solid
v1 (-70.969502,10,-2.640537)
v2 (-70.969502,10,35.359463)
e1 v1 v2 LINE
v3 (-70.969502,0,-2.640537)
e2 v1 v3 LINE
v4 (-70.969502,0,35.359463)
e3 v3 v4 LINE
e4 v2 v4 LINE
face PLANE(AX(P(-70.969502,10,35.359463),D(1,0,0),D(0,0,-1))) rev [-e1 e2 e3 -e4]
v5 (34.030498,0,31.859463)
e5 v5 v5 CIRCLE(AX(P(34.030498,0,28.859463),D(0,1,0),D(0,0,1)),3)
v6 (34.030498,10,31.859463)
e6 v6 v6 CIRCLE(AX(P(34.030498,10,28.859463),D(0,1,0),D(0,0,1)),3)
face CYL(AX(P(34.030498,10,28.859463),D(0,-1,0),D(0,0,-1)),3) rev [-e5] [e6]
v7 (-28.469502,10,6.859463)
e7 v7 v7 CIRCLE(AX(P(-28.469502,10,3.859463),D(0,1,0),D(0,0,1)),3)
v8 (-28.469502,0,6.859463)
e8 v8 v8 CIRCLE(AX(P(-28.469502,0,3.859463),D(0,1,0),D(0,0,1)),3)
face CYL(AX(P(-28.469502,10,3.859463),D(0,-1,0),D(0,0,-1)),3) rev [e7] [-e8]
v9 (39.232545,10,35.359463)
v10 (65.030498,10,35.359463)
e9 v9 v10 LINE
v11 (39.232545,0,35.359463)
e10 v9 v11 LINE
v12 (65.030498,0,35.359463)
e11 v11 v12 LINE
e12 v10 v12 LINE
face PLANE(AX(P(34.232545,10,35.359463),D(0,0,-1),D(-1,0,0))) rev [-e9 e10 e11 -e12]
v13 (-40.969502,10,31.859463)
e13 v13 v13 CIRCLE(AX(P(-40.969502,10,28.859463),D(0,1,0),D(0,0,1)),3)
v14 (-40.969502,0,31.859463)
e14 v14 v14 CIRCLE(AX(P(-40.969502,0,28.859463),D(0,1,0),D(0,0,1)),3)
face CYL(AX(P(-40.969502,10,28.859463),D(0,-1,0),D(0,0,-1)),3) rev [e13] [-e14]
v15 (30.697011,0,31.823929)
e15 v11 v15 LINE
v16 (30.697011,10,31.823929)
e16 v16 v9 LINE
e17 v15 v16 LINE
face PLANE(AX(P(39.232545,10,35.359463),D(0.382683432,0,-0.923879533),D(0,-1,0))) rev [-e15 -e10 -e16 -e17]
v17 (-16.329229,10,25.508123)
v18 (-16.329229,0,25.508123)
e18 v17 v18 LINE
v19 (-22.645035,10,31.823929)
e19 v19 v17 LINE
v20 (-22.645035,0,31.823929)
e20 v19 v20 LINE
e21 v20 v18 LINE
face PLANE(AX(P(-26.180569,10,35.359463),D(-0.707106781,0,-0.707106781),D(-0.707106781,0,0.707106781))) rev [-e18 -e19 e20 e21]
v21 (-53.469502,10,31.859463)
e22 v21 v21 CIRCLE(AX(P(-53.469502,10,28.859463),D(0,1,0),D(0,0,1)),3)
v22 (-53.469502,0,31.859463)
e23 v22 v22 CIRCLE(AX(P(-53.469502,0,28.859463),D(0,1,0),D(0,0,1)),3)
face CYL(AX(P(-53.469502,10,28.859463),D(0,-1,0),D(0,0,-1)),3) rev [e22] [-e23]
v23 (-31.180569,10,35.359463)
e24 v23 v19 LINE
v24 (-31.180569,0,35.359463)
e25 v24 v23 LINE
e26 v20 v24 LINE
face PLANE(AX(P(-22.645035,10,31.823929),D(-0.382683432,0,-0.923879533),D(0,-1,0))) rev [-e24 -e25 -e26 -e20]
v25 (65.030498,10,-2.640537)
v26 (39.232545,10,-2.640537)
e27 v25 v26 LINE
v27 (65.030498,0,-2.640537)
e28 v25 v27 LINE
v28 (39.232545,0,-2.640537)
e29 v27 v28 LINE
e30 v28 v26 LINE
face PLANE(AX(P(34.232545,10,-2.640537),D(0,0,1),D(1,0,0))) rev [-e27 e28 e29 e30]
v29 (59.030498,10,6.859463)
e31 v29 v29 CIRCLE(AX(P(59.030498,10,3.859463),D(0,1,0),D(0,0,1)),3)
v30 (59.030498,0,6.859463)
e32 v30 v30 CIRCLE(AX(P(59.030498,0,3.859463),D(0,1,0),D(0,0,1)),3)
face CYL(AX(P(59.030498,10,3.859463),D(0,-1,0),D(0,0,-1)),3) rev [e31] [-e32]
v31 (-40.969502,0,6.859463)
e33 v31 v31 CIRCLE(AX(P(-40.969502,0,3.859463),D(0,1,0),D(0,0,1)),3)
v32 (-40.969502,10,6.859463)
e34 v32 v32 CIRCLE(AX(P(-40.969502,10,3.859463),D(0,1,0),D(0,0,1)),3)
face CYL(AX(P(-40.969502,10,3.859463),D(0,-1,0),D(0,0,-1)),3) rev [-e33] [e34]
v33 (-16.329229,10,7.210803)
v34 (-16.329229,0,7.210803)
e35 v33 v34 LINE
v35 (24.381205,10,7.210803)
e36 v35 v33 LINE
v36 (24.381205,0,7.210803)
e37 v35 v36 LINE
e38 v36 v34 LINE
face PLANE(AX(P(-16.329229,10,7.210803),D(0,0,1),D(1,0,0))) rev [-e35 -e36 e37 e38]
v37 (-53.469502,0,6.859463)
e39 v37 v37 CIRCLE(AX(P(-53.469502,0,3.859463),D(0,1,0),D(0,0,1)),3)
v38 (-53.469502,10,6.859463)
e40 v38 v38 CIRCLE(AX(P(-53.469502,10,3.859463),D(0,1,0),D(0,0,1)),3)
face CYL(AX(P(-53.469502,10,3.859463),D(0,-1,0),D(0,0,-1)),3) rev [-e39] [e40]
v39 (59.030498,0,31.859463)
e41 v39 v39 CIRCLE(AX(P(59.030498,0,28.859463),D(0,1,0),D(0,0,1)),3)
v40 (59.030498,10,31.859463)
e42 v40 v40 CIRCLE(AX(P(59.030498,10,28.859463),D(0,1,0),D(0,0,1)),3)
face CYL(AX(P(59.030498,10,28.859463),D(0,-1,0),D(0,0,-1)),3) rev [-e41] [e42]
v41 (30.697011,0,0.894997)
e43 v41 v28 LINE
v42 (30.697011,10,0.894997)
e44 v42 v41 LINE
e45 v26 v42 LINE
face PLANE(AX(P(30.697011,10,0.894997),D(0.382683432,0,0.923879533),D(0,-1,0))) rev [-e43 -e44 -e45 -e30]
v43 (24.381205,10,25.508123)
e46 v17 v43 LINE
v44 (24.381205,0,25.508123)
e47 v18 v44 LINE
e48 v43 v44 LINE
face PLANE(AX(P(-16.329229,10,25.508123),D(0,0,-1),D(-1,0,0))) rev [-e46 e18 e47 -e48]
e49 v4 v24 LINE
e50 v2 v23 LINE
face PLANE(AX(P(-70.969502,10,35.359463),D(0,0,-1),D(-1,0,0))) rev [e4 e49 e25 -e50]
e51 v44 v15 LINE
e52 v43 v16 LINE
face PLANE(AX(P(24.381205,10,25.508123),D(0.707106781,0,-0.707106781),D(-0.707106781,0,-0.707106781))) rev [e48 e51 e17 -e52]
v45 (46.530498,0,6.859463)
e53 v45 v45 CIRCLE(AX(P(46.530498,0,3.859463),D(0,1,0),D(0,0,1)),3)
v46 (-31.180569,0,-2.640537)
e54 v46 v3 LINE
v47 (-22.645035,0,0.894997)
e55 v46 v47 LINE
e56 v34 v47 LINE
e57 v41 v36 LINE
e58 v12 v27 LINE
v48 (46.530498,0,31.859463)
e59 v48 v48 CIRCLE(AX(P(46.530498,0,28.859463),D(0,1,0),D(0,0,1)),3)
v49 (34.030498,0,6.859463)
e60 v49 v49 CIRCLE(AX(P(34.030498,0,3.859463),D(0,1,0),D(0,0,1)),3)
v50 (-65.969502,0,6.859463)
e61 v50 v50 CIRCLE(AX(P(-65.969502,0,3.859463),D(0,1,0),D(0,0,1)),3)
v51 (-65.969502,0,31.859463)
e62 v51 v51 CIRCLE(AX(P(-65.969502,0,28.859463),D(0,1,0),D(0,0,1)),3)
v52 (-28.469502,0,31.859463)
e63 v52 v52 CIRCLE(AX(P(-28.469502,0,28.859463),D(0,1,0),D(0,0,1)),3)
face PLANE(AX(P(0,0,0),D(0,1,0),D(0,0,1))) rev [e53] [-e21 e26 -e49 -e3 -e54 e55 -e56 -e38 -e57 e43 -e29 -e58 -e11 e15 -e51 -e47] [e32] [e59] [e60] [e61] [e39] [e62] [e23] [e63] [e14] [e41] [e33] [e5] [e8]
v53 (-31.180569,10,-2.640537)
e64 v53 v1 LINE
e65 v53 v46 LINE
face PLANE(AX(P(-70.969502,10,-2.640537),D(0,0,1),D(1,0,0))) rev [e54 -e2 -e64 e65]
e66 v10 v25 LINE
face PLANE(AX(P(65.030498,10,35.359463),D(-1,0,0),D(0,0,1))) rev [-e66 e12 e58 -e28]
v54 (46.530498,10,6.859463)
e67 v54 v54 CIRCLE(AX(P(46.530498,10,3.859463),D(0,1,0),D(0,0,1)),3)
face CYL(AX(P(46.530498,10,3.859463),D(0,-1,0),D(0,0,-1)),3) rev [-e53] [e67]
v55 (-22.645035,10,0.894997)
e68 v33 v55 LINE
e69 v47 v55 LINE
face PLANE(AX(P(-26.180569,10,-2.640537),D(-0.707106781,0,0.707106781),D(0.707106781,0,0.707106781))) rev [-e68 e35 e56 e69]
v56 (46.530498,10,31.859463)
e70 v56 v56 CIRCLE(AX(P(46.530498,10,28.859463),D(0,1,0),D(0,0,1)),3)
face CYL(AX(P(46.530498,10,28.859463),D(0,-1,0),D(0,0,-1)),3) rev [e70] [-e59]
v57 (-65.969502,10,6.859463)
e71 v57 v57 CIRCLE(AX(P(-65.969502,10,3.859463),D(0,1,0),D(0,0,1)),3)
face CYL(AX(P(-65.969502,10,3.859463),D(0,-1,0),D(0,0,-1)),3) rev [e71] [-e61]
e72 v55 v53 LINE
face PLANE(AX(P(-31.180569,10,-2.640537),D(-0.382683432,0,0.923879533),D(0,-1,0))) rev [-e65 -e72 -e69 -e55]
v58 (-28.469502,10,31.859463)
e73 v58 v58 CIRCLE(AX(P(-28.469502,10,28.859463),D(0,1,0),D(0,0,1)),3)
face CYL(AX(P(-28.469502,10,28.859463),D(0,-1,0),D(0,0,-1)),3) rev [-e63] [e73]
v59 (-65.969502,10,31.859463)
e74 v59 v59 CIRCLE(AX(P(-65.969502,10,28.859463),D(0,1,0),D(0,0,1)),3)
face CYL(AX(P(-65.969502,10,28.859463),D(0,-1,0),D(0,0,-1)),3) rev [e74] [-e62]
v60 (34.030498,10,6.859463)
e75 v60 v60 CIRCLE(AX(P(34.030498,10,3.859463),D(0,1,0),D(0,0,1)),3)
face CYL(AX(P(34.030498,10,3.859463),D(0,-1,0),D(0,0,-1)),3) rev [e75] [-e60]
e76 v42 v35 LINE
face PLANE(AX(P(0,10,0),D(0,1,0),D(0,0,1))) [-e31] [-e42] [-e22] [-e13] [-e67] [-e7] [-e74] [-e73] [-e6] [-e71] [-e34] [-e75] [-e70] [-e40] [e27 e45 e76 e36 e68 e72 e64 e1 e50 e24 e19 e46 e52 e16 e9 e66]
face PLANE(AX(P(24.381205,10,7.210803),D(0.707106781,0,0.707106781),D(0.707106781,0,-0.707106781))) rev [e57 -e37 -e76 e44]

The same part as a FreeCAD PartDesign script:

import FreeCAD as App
import Part
import Sketcher
from FreeCAD import Vector
Q = App.Units.Quantity


def edges_at(feature, points):
    """Names of the edges that pass closest to the given points."""
    edges = feature.Shape.Edges
    near = lambda p: min(range(len(edges)), key=lambda i: edges[i].distToShape(Part.Vertex(*p))[0])
    return sorted({f"Edge{near(p) + 1}" for p in points})

doc = App.newDocument("Part")
body = doc.addObject("PartDesign::Body", "Body")

sketch1 = body.newObject("Sketcher::SketchObject", "Sketch")
sketch1.AttachmentSupport = (doc.getObject("XZ_Plane"), [""])
sketch1.MapMode = "FlatFace"
sketch1.addGeometry([
    Part.LineSegment(Vector(-16.3, 7.2, 0), Vector(-26.2, -2.6, 0)),
    Part.LineSegment(Vector(-26.2, -2.6, 0), Vector(-71, -2.6, 0)),
    Part.LineSegment(Vector(-71, -2.6, 0), Vector(-71, 35.4, 0)),
    Part.LineSegment(Vector(-71, 35.4, 0), Vector(-26.2, 35.4, 0)),
    Part.LineSegment(Vector(-26.2, 35.4, 0), Vector(-16.3, 25.5, 0)),
    Part.LineSegment(Vector(-16.3, 25.5, 0), Vector(24.4, 25.5, 0)),
    Part.LineSegment(Vector(24.4, 25.5, 0), Vector(34.2, 35.4, 0)),
    Part.LineSegment(Vector(34.2, 35.4, 0), Vector(65, 35.4, 0)),
    Part.LineSegment(Vector(65, 35.4, 0), Vector(65, -2.6, 0)),
    Part.LineSegment(Vector(65, -2.6, 0), Vector(34.2, -2.6, 0)),
    Part.LineSegment(Vector(34.2, -2.6, 0), Vector(24.4, 7.2, 0)),
    Part.LineSegment(Vector(24.4, 7.2, 0), Vector(-16.3, 7.2, 0)),
    Part.Circle(Vector(59, 28.9, 0), Vector(0, 0, 1), 3),
    Part.Circle(Vector(46.5, 28.9, 0), Vector(0, 0, 1), 3),
    Part.Circle(Vector(34, 28.9, 0), Vector(0, 0, 1), 3),
    Part.Circle(Vector(-28.5, 28.9, 0), Vector(0, 0, 1), 3),
    Part.Circle(Vector(-41, 28.9, 0), Vector(0, 0, 1), 3),
    Part.Circle(Vector(-53.5, 28.9, 0), Vector(0, 0, 1), 3),
    Part.Circle(Vector(-66, 28.9, 0), Vector(0, 0, 1), 3),
    Part.Circle(Vector(59, 3.9, 0), Vector(0, 0, 1), 3),
    Part.Circle(Vector(46.5, 3.9, 0), Vector(0, 0, 1), 3),
    Part.Circle(Vector(34, 3.9, 0), Vector(0, 0, 1), 3),
    Part.Circle(Vector(-28.5, 3.9, 0), Vector(0, 0, 1), 3),
    Part.Circle(Vector(-41, 3.9, 0), Vector(0, 0, 1), 3),
    Part.Circle(Vector(-53.5, 3.9, 0), Vector(0, 0, 1), 3),
    Part.Circle(Vector(-66, 3.9, 0), Vector(0, 0, 1), 3),
], False)
sketch1.addConstraint([
    Sketcher.Constraint("Coincident", 0, 2, 1, 1),
    Sketcher.Constraint("Coincident", 1, 2, 2, 1),
    Sketcher.Constraint("Coincident", 2, 2, 3, 1),
    Sketcher.Constraint("Coincident", 3, 2, 4, 1),
    Sketcher.Constraint("Coincident", 4, 2, 5, 1),
    Sketcher.Constraint("Coincident", 5, 2, 6, 1),
    Sketcher.Constraint("Coincident", 6, 2, 7, 1),
    Sketcher.Constraint("Coincident", 7, 2, 8, 1),
    Sketcher.Constraint("Coincident", 8, 2, 9, 1),
    Sketcher.Constraint("Coincident", 9, 2, 10, 1),
    Sketcher.Constraint("Coincident", 10, 2, 11, 1),
    Sketcher.Constraint("Coincident", 11, 2, 0, 1),
    Sketcher.Constraint("Horizontal", 1),
    Sketcher.Constraint("Vertical", 2),
    Sketcher.Constraint("Horizontal", 3),
    Sketcher.Constraint("Horizontal", 5),
    Sketcher.Constraint("Horizontal", 7),
    Sketcher.Constraint("Vertical", 8),
    Sketcher.Constraint("Horizontal", 9),
    Sketcher.Constraint("Horizontal", 11),
    Sketcher.Constraint("Equal", 12, 13),
    Sketcher.Constraint("Equal", 13, 14),
    Sketcher.Constraint("Equal", 14, 15),
    Sketcher.Constraint("Equal", 15, 16),
    Sketcher.Constraint("Equal", 16, 17),
    Sketcher.Constraint("Equal", 17, 18),
    Sketcher.Constraint("Equal", 18, 19),
    Sketcher.Constraint("Equal", 19, 20),
    Sketcher.Constraint("Equal", 20, 21),
    Sketcher.Constraint("Equal", 21, 22),
    Sketcher.Constraint("Equal", 22, 23),
    Sketcher.Constraint("Equal", 23, 24),
    Sketcher.Constraint("Equal", 24, 25),
    Sketcher.Constraint("Perpendicular", 0, 4),
    Sketcher.Constraint("Perpendicular", 4, 6),
    Sketcher.Constraint("Perpendicular", 6, 10),
    Sketcher.Constraint("Horizontal", 12, 3, 13, 3),
    Sketcher.Constraint("Horizontal", 13, 3, 14, 3),
    Sketcher.Constraint("Horizontal", 14, 3, 15, 3),
    Sketcher.Constraint("Horizontal", 15, 3, 16, 3),
    Sketcher.Constraint("Horizontal", 16, 3, 17, 3),
    Sketcher.Constraint("Horizontal", 17, 3, 18, 3),
    Sketcher.Constraint("Horizontal", 19, 3, 20, 3),
    Sketcher.Constraint("Horizontal", 20, 3, 21, 3),
    Sketcher.Constraint("Horizontal", 21, 3, 22, 3),
    Sketcher.Constraint("Horizontal", 22, 3, 23, 3),
    Sketcher.Constraint("Horizontal", 23, 3, 24, 3),
    Sketcher.Constraint("Horizontal", 24, 3, 25, 3),
    Sketcher.Constraint("Horizontal", 3, 2, 6, 2),
    Sketcher.Constraint("Horizontal", 1, 2, 8, 2),
    Sketcher.Constraint("Vertical", 12, 3, 19, 3),
    Sketcher.Constraint("Vertical", 13, 3, 20, 3),
    Sketcher.Constraint("Vertical", 14, 3, 21, 3),
    Sketcher.Constraint("Vertical", 15, 3, 22, 3),
    Sketcher.Constraint("Vertical", 16, 3, 23, 3),
    Sketcher.Constraint("Vertical", 17, 3, 24, 3),
    Sketcher.Constraint("Vertical", 18, 3, 25, 3),
    Sketcher.Constraint("Vertical", 0, 2, 3, 2),
    Sketcher.Constraint("Vertical", 6, 2, 9, 2),
    Sketcher.Constraint("Vertical", 5, 2, 10, 2),
    Sketcher.Constraint("Vertical", 4, 2, 11, 2),
    Sketcher.Constraint("Diameter", 12, Q("6 mm")),
    Sketcher.Constraint("DistanceY", 2, 1, 2, 2, Q("38 mm")),
    Sketcher.Constraint("DistanceX", 14, 3, 12, 3, Q("25 mm")),
    Sketcher.Constraint("DistanceX", 15, 3, 13, 3, Q("75 mm")),
    Sketcher.Constraint("DistanceX", 16, 3, 14, 3, Q("75 mm")),
    Sketcher.Constraint("DistanceX", 17, 3, 15, 3, Q("25 mm")),
    Sketcher.Constraint("DistanceX", 18, 3, 16, 3, Q("25 mm")),
    Sketcher.Constraint("DistanceY", 19, 3, 12, 3, Q("25 mm")),
    Sketcher.Constraint("DistanceX", 1, 2, 25, 3, Q("5 mm")),
    Sketcher.Constraint("DistanceX", 12, 3, 7, 2, Q("6 mm")),
    Sketcher.Constraint("DistanceX", 13, 3, 12, 3, Q("12.5 mm")),
    Sketcher.Constraint("DistanceY", 0, 2, 22, 3, Q("6.5 mm")),
    Sketcher.Constraint("Distance", 0, Q("13.931898 mm")),
    Sketcher.Constraint("DistanceX", 1, 2, 1, 1, Q("44.788933 mm")),
    Sketcher.Constraint("DistanceX", 5, 1, 5, 2, Q("40.710435 mm")),
    Sketcher.Constraint("DistanceX", 0, 2, -1, 1, Q("26.180569 mm")),
    Sketcher.Constraint("DistanceY", -1, 1, 12, 3, Q("28.859463 mm")),
])
pad1 = body.newObject("PartDesign::Pad", "Pad")
pad1.Profile = sketch1
pad1.Length = 10
pad1.Reversed = True
doc.recompute()

chamfer = body.newObject("PartDesign::Chamfer", "Chamfer")
chamfer.Base = (pad1, edges_at(pad1, [
    (-26.181, 5, -2.641),
    (34.233, 5, -2.641),
    (34.233, 5, 35.359),
    (-26.181, 5, 35.359),
]))
chamfer.Size = 5

doc.recompute()
